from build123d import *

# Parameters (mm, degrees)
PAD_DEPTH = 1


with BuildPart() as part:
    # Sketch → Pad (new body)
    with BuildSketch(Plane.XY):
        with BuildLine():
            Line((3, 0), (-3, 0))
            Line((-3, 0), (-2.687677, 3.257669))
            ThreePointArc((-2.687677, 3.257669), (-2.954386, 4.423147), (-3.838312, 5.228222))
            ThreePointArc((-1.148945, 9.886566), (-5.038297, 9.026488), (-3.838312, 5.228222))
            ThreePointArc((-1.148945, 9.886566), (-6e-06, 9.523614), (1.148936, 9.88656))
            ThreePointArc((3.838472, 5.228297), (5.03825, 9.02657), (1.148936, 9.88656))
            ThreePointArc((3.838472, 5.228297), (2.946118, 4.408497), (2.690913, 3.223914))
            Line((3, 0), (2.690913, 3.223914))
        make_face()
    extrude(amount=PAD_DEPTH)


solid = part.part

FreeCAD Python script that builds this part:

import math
import FreeCAD as App
import Part
import Sketcher

doc = App.newDocument("Part")
body = doc.addObject("PartDesign::Body", "Body")

# Sketch on XY plane
sketch1 = body.newObject("Sketcher::SketchObject", "Sketch")
sketch1.AttachmentSupport = (doc.getObject("XY_Plane"), [""])
sketch1.MapMode = "FlatFace"
sketch1.addGeometry([
    Part.LineSegment(App.Vector(-3, 0, 0), App.Vector(3, 0, 0)),  # 0
    Part.LineSegment(App.Vector(3, 0, 0), App.Vector(2.7, 3.2, 0)),  # 1
    Part.ArcOfCircle(Part.Circle(App.Vector(4.7, 3.4, 0), App.Vector(0, 0, 1), 2), math.radians(115), math.radians(185)),  # 2
    Part.ArcOfCircle(Part.Circle(App.Vector(2.7, 7.7, 0), App.Vector(0, 0, 1), 2.7), math.radians(-65), math.radians(125)),  # 3
    Part.ArcOfCircle(Part.Circle(App.Vector(0, 11.5, 0), App.Vector(0, 0, 1), 2), math.radians(-125), math.radians(-55)),  # 4
    Part.ArcOfCircle(Part.Circle(App.Vector(-2.7, 7.7, 0), App.Vector(0, 0, 1), 2.7), math.radians(55), math.radians(245)),  # 5
    Part.ArcOfCircle(Part.Circle(App.Vector(-4.7, 3.4, 0), App.Vector(0, 0, 1), 2), math.radians(-5), math.radians(65)),  # 6
    Part.LineSegment(App.Vector(-2.7, 3.3, 0), App.Vector(-3, 0, 0)),  # 7
], False)
sketch1.addConstraint([
    Sketcher.Constraint("Coincident", 0, 2, 1, 1),
    Sketcher.Constraint("Tangent", 1, 2, 2, 2),
    Sketcher.Constraint("Tangent", 2, 1, 3, 1),
    Sketcher.Constraint("Tangent", 3, 2, 4, 2),
    Sketcher.Constraint("Coincident", 4, 1, 5, 1),
    Sketcher.Constraint("Tangent", 5, 2, 6, 2),
    Sketcher.Constraint("Coincident", 6, 1, 7, 1),
    Sketcher.Constraint("Coincident", 7, 2, 0, 1),
    Sketcher.Constraint("Horizontal", 0),
    Sketcher.Constraint("Equal", 2, 4),
    Sketcher.Constraint("Equal", 3, 5),
    Sketcher.Constraint("Equal", 4, 6),
    Sketcher.Constraint("Symmetric", 0, 2, 7, 2, -1, 1),
    Sketcher.Constraint("Symmetric", 3, 3, 5, 3, -2),
    Sketcher.Constraint("Radius", 2, 2.0),
    Sketcher.Constraint("Radius", 3, 2.7),
    Sketcher.Constraint("DistanceX", 0, 1, 0, 2, 6.0),
    Sketcher.Constraint("DistanceX", -1, 1, 3, 3, 2.7),
    Sketcher.Constraint("DistanceY", -1, 1, 3, 2, 9.88656),
    Sketcher.Constraint("DistanceY", -1, 1, 5, 2, 5.228222),
    Sketcher.Constraint("DistanceY", -1, 1, 6, 1, 3.257669),
    Sketcher.Constraint("DistanceY", 2, 3, 4, 3, 8.108829),
    Sketcher.Constraint("DistanceY", 4, 1, 4, 3, 1.637048),
])
pad1 = body.newObject("PartDesign::Pad", "Pad")
pad1.Profile = sketch1
pad1.Length = 1

doc.recompute()
